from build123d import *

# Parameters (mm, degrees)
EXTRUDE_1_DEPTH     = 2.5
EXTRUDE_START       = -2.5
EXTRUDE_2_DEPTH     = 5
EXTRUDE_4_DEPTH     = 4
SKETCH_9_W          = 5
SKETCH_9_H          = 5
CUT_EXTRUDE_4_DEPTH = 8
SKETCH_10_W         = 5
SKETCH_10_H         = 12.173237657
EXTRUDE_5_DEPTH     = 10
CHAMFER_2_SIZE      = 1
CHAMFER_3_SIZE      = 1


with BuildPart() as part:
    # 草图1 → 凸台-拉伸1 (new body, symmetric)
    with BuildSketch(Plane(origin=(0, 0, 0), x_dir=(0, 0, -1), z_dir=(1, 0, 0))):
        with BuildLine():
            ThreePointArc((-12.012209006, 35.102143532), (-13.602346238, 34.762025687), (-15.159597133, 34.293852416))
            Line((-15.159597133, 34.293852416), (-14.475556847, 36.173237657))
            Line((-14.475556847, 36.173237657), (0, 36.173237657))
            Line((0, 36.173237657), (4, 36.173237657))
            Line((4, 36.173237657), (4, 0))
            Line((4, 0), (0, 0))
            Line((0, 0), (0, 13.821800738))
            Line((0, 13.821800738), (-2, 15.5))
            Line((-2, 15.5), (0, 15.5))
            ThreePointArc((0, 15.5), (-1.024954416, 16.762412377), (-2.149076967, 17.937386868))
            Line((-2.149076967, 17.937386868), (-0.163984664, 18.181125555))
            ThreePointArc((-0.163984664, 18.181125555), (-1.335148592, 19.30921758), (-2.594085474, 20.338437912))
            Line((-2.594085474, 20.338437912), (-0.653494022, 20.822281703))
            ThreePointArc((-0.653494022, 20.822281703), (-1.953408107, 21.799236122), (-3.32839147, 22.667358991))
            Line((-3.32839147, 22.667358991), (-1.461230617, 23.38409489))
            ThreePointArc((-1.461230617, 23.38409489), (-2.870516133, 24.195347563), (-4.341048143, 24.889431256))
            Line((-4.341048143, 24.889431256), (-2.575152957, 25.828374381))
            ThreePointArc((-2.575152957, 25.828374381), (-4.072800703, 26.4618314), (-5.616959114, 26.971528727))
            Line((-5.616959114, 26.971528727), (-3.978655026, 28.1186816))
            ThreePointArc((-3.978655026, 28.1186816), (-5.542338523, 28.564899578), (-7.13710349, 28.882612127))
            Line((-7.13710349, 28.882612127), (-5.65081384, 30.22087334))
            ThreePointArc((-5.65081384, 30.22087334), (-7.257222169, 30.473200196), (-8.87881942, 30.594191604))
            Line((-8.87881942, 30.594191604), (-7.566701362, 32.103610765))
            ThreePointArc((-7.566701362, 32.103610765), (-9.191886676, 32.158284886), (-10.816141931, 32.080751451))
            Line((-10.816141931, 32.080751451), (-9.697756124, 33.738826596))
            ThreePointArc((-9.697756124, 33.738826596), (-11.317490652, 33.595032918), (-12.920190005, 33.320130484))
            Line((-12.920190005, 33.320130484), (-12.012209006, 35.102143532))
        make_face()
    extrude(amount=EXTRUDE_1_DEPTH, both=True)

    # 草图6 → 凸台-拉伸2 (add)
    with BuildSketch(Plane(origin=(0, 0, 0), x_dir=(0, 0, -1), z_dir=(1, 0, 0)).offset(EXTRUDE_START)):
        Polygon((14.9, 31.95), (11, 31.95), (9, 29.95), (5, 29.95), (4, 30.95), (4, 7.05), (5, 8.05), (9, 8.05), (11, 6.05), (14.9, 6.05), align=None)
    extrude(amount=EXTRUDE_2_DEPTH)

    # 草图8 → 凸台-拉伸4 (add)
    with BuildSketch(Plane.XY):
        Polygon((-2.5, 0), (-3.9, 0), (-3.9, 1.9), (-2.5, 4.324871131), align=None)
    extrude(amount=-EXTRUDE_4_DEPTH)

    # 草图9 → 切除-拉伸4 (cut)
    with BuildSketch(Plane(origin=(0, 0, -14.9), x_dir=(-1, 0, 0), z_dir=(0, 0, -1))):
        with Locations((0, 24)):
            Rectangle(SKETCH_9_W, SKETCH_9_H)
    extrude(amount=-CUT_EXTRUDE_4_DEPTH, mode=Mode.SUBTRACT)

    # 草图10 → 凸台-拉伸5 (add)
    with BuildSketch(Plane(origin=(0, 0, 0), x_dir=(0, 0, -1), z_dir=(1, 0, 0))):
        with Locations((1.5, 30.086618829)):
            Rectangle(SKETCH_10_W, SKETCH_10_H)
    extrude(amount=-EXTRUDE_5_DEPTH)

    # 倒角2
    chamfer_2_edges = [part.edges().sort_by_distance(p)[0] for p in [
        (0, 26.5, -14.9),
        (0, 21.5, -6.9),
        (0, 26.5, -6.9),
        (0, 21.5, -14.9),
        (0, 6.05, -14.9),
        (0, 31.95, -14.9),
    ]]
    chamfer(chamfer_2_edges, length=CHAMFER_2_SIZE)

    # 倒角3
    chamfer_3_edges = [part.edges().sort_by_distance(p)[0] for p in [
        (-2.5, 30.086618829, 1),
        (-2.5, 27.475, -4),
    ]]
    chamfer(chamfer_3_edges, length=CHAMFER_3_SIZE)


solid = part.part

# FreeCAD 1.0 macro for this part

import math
import FreeCAD as App
import Part
import Sketcher
Q = App.Units.Quantity


def edges_at(feature, points):
    """Names of the edges that pass closest to the given points."""
    edges = feature.Shape.Edges
    near = lambda p: min(range(len(edges)), key=lambda i: edges[i].distToShape(Part.Vertex(*p))[0])
    return sorted({f"Edge{near(p) + 1}" for p in points})


def add_polygon(sketch, points):
    """Adds a closed chain of lines whose ends are joined by coincident constraints."""
    first, n = sketch.GeometryCount, len(points)
    for a, b in zip(points, points[1:] + points[:1]):
        sketch.addGeometry(Part.LineSegment(App.Vector(*a, 0), App.Vector(*b, 0)), False)
    for i in range(n):
        sketch.addConstraint(Sketcher.Constraint("Coincident", first + i, 2, first + (i + 1) % n, 1))

doc = App.newDocument("Part")
body = doc.addObject("PartDesign::Body", "Body")

# Sketch on YZ plane
sketch1 = body.newObject("Sketcher::SketchObject", "Sketch")
sketch1.AttachmentSupport = (doc.getObject("YZ_Plane"), [""])
sketch1.MapMode = "FlatFace"
sketch1.addGeometry([
    Part.ArcOfCircle(Part.Circle(App.Vector(15.4, 8.6, 0), App.Vector(0, 0, 1), 20), math.radians(9.74), math.radians(19.06)),  # 0
    Part.LineSegment(App.Vector(35.1, 12, 0), App.Vector(33.3, 12.9, 0)),  # 1
    Part.ArcOfCircle(Part.Circle(App.Vector(13.8, 8.7, 0), App.Vector(0, 0, 1), 20), math.radians(2.74), math.radians(12.06)),  # 2
    Part.LineSegment(App.Vector(33.7, 9.7, 0), App.Vector(32.1, 10.8, 0)),  # 3
    Part.ArcOfCircle(Part.Circle(App.Vector(12.2, 9.1, 0), App.Vector(0, 0, 1), 20), math.radians(-4.26), math.radians(5.06)),  # 4
    Part.LineSegment(App.Vector(32.1, 7.6, 0), App.Vector(30.6, 8.9, 0)),  # 5
    Part.ArcOfCircle(Part.Circle(App.Vector(10.6, 9.6, 0), App.Vector(0, 0, 1), 20), math.radians(-11.26), math.radians(-1.94)),  # 6
    Part.LineSegment(App.Vector(30.2, 5.7, 0), App.Vector(28.9, 7.1, 0)),  # 7
    Part.ArcOfCircle(Part.Circle(App.Vector(9.1, 10.2, 0), App.Vector(0, 0, 1), 20), math.radians(-18.26), math.radians(-8.94)),  # 8
    Part.LineSegment(App.Vector(28.1, 4, 0), App.Vector(27, 5.6, 0)),  # 9
    Part.ArcOfCircle(Part.Circle(App.Vector(7.7, 11.1, 0), App.Vector(0, 0, 1), 20), math.radians(-25.26), math.radians(-15.94)),  # 10
    Part.LineSegment(App.Vector(25.8, 2.6, 0), App.Vector(24.9, 4.3, 0)),  # 11
    Part.ArcOfCircle(Part.Circle(App.Vector(6.5, 12.1, 0), App.Vector(0, 0, 1), 20), math.radians(-32.26), math.radians(-22.94)),  # 12
    Part.LineSegment(App.Vector(23.4, 1.5, 0), App.Vector(22.7, 3.3, 0)),  # 13
    Part.ArcOfCircle(Part.Circle(App.Vector(5.3, 13.3, 0), App.Vector(0, 0, 1), 20), math.radians(-39.26), math.radians(-29.94)),  # 14
    Part.LineSegment(App.Vector(20.8, 0.7, 0), App.Vector(20.3, 2.6, 0)),  # 15
    Part.ArcOfCircle(Part.Circle(App.Vector(4.4, 14.6, 0), App.Vector(0, 0, 1), 20), math.radians(-46.26), math.radians(-36.94)),  # 16
    Part.LineSegment(App.Vector(18.2, 0.2, 0), App.Vector(17.9, 2.1, 0)),  # 17
    Part.ArcOfCircle(Part.Circle(App.Vector(3.5, 16, 0), App.Vector(0, 0, 1), 20), math.radians(-53.26), math.radians(-43.94)),  # 18
    Part.LineSegment(App.Vector(15.5, 0, 0), App.Vector(15.5, 2, 0)),  # 19
    Part.LineSegment(App.Vector(15.5, 2, 0), App.Vector(13.8, 0, 0)),  # 20
    Part.LineSegment(App.Vector(13.8, 0, 0), App.Vector(0, 0, 0)),  # 21
    Part.LineSegment(App.Vector(0, 0, 0), App.Vector(0, -4, 0)),  # 22
    Part.LineSegment(App.Vector(0, -4, 0), App.Vector(36.2, -4, 0)),  # 23
    Part.LineSegment(App.Vector(36.2, -4, 0), App.Vector(36.2, 14.5, 0)),  # 24
    Part.LineSegment(App.Vector(36.2, 14.5, 0), App.Vector(34.3, 15.2, 0)),  # 25
], False)
sketch1.addConstraint([
    Sketcher.Constraint("Coincident", 0, 1, 1, 1),
    Sketcher.Constraint("Coincident", 1, 2, 2, 2),
    Sketcher.Constraint("Coincident", 2, 1, 3, 1),
    Sketcher.Constraint("Coincident", 3, 2, 4, 2),
    Sketcher.Constraint("Coincident", 4, 1, 5, 1),
    Sketcher.Constraint("Coincident", 5, 2, 6, 2),
    Sketcher.Constraint("Coincident", 6, 1, 7, 1),
    Sketcher.Constraint("Coincident", 7, 2, 8, 2),
    Sketcher.Constraint("Coincident", 8, 1, 9, 1),
    Sketcher.Constraint("Coincident", 9, 2, 10, 2),
    Sketcher.Constraint("Coincident", 10, 1, 11, 1),
    Sketcher.Constraint("Coincident", 11, 2, 12, 2),
    Sketcher.Constraint("Coincident", 12, 1, 13, 1),
    Sketcher.Constraint("Coincident", 13, 2, 14, 2),
    Sketcher.Constraint("Coincident", 14, 1, 15, 1),
    Sketcher.Constraint("Coincident", 15, 2, 16, 2),
    Sketcher.Constraint("Coincident", 16, 1, 17, 1),
    Sketcher.Constraint("Coincident", 17, 2, 18, 2),
    Sketcher.Constraint("Coincident", 18, 1, 19, 1),
    Sketcher.Constraint("Coincident", 19, 2, 20, 1),
    Sketcher.Constraint("Coincident", 20, 2, 21, 1),
    Sketcher.Constraint("Coincident", 21, 2, 22, 1),
    Sketcher.Constraint("Coincident", 22, 2, 23, 1),
    Sketcher.Constraint("Coincident", 23, 2, 24, 1),
    Sketcher.Constraint("Coincident", 24, 2, 25, 1),
    Sketcher.Constraint("Coincident", 25, 2, 0, 2),
    Sketcher.Constraint("Vertical", 19),
    Sketcher.Constraint("Horizontal", 21),
    Sketcher.Constraint("Vertical", 22),
    Sketcher.Constraint("Horizontal", 23),
    Sketcher.Constraint("Vertical", 24),
    Sketcher.Constraint("Coincident", 21, 2, -1, 1),
    Sketcher.Constraint("Equal", 0, 2),
    Sketcher.Constraint("Equal", 2, 4),
    Sketcher.Constraint("Equal", 4, 6),
    Sketcher.Constraint("Equal", 6, 8),
    Sketcher.Constraint("Equal", 8, 10),
    Sketcher.Constraint("Equal", 10, 12),
    Sketcher.Constraint("Equal", 12, 14),
    Sketcher.Constraint("Equal", 14, 16),
    Sketcher.Constraint("Equal", 16, 18),
    Sketcher.Constraint("PointOnObject", 18, 1, -1),
    Sketcher.Constraint("Equal", 1, 3),
    Sketcher.Constraint("Equal", 3, 5),
    Sketcher.Constraint("Equal", 5, 7),
    Sketcher.Constraint("Equal", 7, 9),
    Sketcher.Constraint("Equal", 9, 11),
    Sketcher.Constraint("Equal", 11, 13),
    Sketcher.Constraint("Equal", 13, 15),
    Sketcher.Constraint("Equal", 15, 17),
    Sketcher.Constraint("Equal", 17, 25),
    Sketcher.Constraint("Radius", 0, Q("20 mm")),
    Sketcher.Constraint("DistanceY", 19, 1, 19, 2, Q("2 mm")),
    Sketcher.Constraint("DistanceY", 22, 2, 22, 1, Q("4 mm")),
    Sketcher.Constraint("Angle", 1, Q("153 deg")),
    Sketcher.Constraint("Angle", 3, Q("146 deg")),
    Sketcher.Constraint("Angle", 5, Q("139 deg")),
    Sketcher.Constraint("Angle", 7, Q("132 deg")),
    Sketcher.Constraint("Angle", 9, Q("125 deg")),
    Sketcher.Constraint("Angle", 11, Q("118 deg")),
    Sketcher.Constraint("Angle", 13, Q("111 deg")),
    Sketcher.Constraint("Angle", 15, Q("104 deg")),
    Sketcher.Constraint("Angle", 17, Q("97 deg")),
    Sketcher.Constraint("Angle", 20, Q("-130 deg")),
    Sketcher.Constraint("Angle", 25, Q("160 deg")),
    Sketcher.Constraint("Distance", 1, Q("2 mm")),
    Sketcher.Constraint("DistanceX", -1, 1, 18, 1, Q("15.5 mm")),
    Sketcher.Constraint("DistanceX", 12, 3, 4, 3, Q("5.687999 mm")),
    Sketcher.Constraint("DistanceX", 7, 2, 4, 1, Q("3.220999 mm")),
    Sketcher.Constraint("DistanceY", -1, 1, 4, 1, Q("7.566701 mm")),
    Sketcher.Constraint("DistanceX", 8, 3, 0, 3, Q("6.2652 mm")),
    Sketcher.Constraint("DistanceY", 6, 3, 14, 3, Q("3.7545 mm")),
    Sketcher.Constraint("DistanceX", 0, 3, 2, 1, Q("18.348198 mm")),
    Sketcher.Constraint("DistanceX", 10, 1, 6, 1, Q("4.392499 mm")),
    Sketcher.Constraint("DistanceY", 16, 1, 15, 2, Q("2.430101 mm")),
    Sketcher.Constraint("DistanceY", 2, 1, 24, 2, Q("4.777801 mm")),
    Sketcher.Constraint("DistanceX", 3, 2, 25, 2, Q("2.213101 mm")),
    Sketcher.Constraint("DistanceX", 23, 1, 23, 2, Q("36.173238 mm")),
    Sketcher.Constraint("DistanceY", 24, 1, 24, 2, Q("18.475557 mm")),
    Sketcher.Constraint("DistanceY", -1, 1, 2, 3, Q("8.740519 mm")),
    Sketcher.Constraint("DistanceX", -1, 1, 4, 3, Q("12.15878 mm")),
    Sketcher.Constraint("DistanceY", -1, 1, 12, 3, Q("12.13549 mm")),
    Sketcher.Constraint("DistanceY", -1, 1, 18, 3, Q("16.026469 mm")),
    Sketcher.Constraint("DistanceX", -1, 1, 8, 1, Q("28.118682 mm")),
    Sketcher.Constraint("DistanceY", -1, 1, 9, 2, Q("5.616959 mm")),
    Sketcher.Constraint("DistanceY", -1, 1, 12, 1, Q("1.461231 mm")),
    Sketcher.Constraint("DistanceX", -1, 1, 14, 1, Q("20.822282 mm")),
])
pad1 = body.newObject("PartDesign::Pad", "Pad")
pad1.Profile = sketch1
pad1.Length = 5
pad1.Midplane = True

# Sketch on YZ plane
sketch2 = body.newObject("Sketcher::SketchObject", "Sketch001")
sketch2.AttachmentSupport = (doc.getObject("YZ_Plane"), [""])
sketch2.MapMode = "FlatFace"
sketch2.AttachmentOffset = App.Placement(App.Vector(0, 0, -2.5), App.Rotation())
add_polygon(sketch2, [(31.9, -14.9), (31.9, -11), (29.9, -9), (29.9, -5), (30.9, -4), (7, -4), (8.1, -5), (8.1, -9), (6, -11), (6, -14.9)])  # lines 0-9
sketch2.addConstraint([
    Sketcher.Constraint("Vertical", 0),
    Sketcher.Constraint("Vertical", 2),
    Sketcher.Constraint("Horizontal", 4),
    Sketcher.Constraint("Vertical", 6),
    Sketcher.Constraint("Vertical", 8),
    Sketcher.Constraint("Horizontal", 9),
    Sketcher.Constraint("Perpendicular", 1, 3),
    Sketcher.Constraint("Perpendicular", 3, 5),
    Sketcher.Constraint("Perpendicular", 5, 7),
    Sketcher.Constraint("Horizontal", 2, 2, 5, 2),
    Sketcher.Constraint("Horizontal", 1, 2, 6, 2),
    Sketcher.Constraint("Horizontal", 0, 2, 7, 2),
    Sketcher.Constraint("Equal", 3, 5),
    Sketcher.Constraint("DistanceY", 2, 1, 2, 2, Q("4 mm")),
    Sketcher.Constraint("DistanceX", 4, 2, 4, 1, Q("23.9 mm")),
    Sketcher.Constraint("DistanceX", 9, 1, 9, 2, Q("25.9 mm")),
    Sketcher.Constraint("DistanceY", 0, 1, 0, 2, Q("3.9 mm")),
    Sketcher.Constraint("DistanceY", 0, 2, -1, 1, Q("11 mm")),
    Sketcher.Constraint("DistanceY", 1, 2, -1, 1, Q("9 mm")),
    Sketcher.Constraint("DistanceX", -1, 1, 0, 2, Q("31.95 mm")),
])
pad2 = body.newObject("PartDesign::Pad", "Pad001")
pad2.Profile = sketch2
pad2.Length = 5

# Sketch on XY plane
sketch3 = body.newObject("Sketcher::SketchObject", "Sketch002")
sketch3.AttachmentSupport = (doc.getObject("XY_Plane"), [""])
sketch3.MapMode = "FlatFace"
add_polygon(sketch3, [(-3.9, 0), (-2.5, 0), (-2.5, 4.3), (-3.9, 1.9)])  # lines 0-3
sketch3.addConstraint([
    Sketcher.Constraint("Horizontal", 0),
    Sketcher.Constraint("Vertical", 1),
    Sketcher.Constraint("Vertical", 3),
    Sketcher.Constraint("PointOnObject", 0, 2, -1),
    Sketcher.Constraint("Angle", 2, Q("-120 deg")),
    Sketcher.Constraint("DistanceX", 0, 1, 0, 2, Q("1.4 mm")),
    Sketcher.Constraint("DistanceY", 3, 2, 3, 1, Q("1.9 mm")),
    Sketcher.Constraint("DistanceX", 0, 2, -1, 1, Q("2.5 mm")),
])
pad3 = body.newObject("PartDesign::Pad", "Pad002")
pad3.Profile = sketch3
pad3.Length = 4
pad3.Reversed = True

# Sketch on XY plane
sketch4 = body.newObject("Sketcher::SketchObject", "Sketch003")
sketch4.AttachmentSupport = (doc.getObject("XY_Plane"), [""])
sketch4.MapMode = "FlatFace"
sketch4.AttachmentOffset = App.Placement(App.Vector(0, 0, -14.9), App.Rotation())
add_polygon(sketch4, [(2, 26), (2, 22), (-2, 22), (-2, 26)])  # lines 0-3
sketch4.addConstraint([
    Sketcher.Constraint("Vertical", 0),
    Sketcher.Constraint("Horizontal", 1),
    Sketcher.Constraint("Vertical", 2),
    Sketcher.Constraint("Horizontal", 3),
    Sketcher.Constraint("Equal", 3, 0),
    Sketcher.Constraint("DistanceX", 1, 2, 1, 1, Q("5 mm")),
    Sketcher.Constraint("DistanceX", -1, 1, 0, 2, Q("2.5 mm")),
    Sketcher.Constraint("DistanceY", -1, 1, 0, 2, Q("21.5 mm")),
])
pocket1 = body.newObject("PartDesign::Pocket", "Pocket")
pocket1.Profile = sketch4
pocket1.Length = 8
pocket1.Reversed = True

# Sketch on YZ plane
sketch5 = body.newObject("Sketcher::SketchObject", "Sketch004")
sketch5.AttachmentSupport = (doc.getObject("YZ_Plane"), [""])
sketch5.MapMode = "FlatFace"
add_polygon(sketch5, [(36, 1), (24, 1), (24, -4), (36, -4)])  # lines 0-3
sketch5.addConstraint([
    Sketcher.Constraint("Horizontal", 0),
    Sketcher.Constraint("Vertical", 1),
    Sketcher.Constraint("Horizontal", 2),
    Sketcher.Constraint("Vertical", 3),
    Sketcher.Constraint("DistanceY", 1, 2, 1, 1, Q("5 mm")),
    Sketcher.Constraint("DistanceX", -1, 1, 0, 2, Q("24 mm")),
    Sketcher.Constraint("DistanceY", -1, 1, 0, 2, Q("1 mm")),
    Sketcher.Constraint("DistanceX", 0, 2, 0, 1, Q("12.173238 mm")),
])
pad4 = body.newObject("PartDesign::Pad", "Pad003")
pad4.Profile = sketch5
pad4.Length = 10
pad4.Reversed = True
doc.recompute()

chamfer = body.newObject("PartDesign::Chamfer", "Chamfer")
chamfer.Base = (pad4, edges_at(pad4, [
    (0, 26.5, -14.9),
    (0, 21.5, -6.9),
    (0, 26.5, -6.9),
    (0, 21.5, -14.9),
    (0, 6.05, -14.9),
    (0, 31.95, -14.9),
]))
chamfer.Size = 1
doc.recompute()

chamfer2 = body.newObject("PartDesign::Chamfer", "Chamfer001")
chamfer2.Base = (chamfer, edges_at(chamfer, [(-2.5, 30.087, 1), (-2.5, 27.475, -4)]))
chamfer2.Size = 1

doc.recompute()
